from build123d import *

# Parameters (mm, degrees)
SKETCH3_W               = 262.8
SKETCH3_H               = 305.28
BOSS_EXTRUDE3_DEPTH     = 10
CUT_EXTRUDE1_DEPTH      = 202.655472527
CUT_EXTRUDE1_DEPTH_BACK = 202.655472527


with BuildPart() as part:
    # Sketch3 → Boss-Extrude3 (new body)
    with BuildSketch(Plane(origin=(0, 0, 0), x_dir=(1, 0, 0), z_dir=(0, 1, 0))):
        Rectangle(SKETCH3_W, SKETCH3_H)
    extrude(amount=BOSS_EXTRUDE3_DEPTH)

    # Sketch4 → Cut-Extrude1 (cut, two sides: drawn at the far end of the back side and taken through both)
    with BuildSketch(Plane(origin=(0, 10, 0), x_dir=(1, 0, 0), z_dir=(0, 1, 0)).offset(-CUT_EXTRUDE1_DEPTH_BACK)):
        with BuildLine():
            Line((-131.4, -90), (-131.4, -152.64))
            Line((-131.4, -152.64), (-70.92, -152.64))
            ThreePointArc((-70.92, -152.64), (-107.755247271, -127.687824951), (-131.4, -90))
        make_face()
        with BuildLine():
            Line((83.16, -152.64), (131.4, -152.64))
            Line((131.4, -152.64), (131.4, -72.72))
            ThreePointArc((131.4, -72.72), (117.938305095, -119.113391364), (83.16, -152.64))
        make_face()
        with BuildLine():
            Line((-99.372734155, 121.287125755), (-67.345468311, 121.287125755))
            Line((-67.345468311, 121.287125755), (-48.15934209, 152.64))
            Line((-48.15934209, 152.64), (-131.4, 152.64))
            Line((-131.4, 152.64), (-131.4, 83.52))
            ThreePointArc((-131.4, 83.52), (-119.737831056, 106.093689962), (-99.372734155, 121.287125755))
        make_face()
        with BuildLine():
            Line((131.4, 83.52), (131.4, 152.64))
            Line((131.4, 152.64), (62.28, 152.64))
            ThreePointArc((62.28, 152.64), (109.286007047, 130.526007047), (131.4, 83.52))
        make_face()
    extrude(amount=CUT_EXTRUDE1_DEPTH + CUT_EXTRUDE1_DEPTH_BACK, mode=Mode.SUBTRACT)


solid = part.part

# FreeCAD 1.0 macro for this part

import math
import FreeCAD as App
import Part
import Sketcher


def add_polygon(sketch, points):
    """Adds a closed chain of lines whose ends are joined by coincident constraints."""
    first, n = sketch.GeometryCount, len(points)
    for a, b in zip(points, points[1:] + points[:1]):
        sketch.addGeometry(Part.LineSegment(App.Vector(*a, 0), App.Vector(*b, 0)), False)
    for i in range(n):
        sketch.addConstraint(Sketcher.Constraint("Coincident", first + i, 2, first + (i + 1) % n, 1))

doc = App.newDocument("Part")
body = doc.addObject("PartDesign::Body", "Body")

# Sketch on XZ plane
sketch1 = body.newObject("Sketcher::SketchObject", "Sketch")
sketch1.AttachmentSupport = (doc.getObject("XZ_Plane"), [""])
sketch1.MapMode = "FlatFace"
add_polygon(sketch1, [(-131, -153), (-131, 153), (131, 153), (131, -153)])  # lines 0-3
sketch1.addConstraint([
    Sketcher.Constraint("Vertical", 0),
    Sketcher.Constraint("Horizontal", 1),
    Sketcher.Constraint("Vertical", 2),
    Sketcher.Constraint("Horizontal", 3),
    Sketcher.Constraint("Symmetric", 0, 2, 2, 2, -1, 1),
    Sketcher.Constraint("DistanceX", 1, 1, 1, 2, 262.8),
    Sketcher.Constraint("DistanceY", 0, 1, 0, 2, 305.28),
])
pad1 = body.newObject("PartDesign::Pad", "Pad")
pad1.Profile = sketch1
pad1.Length = 10
pad1.Reversed = True

# Sketch on XZ plane
sketch2 = body.newObject("Sketcher::SketchObject", "Sketch001")
sketch2.AttachmentSupport = (doc.getObject("XZ_Plane"), [""])
sketch2.MapMode = "FlatFace"
sketch2.AttachmentOffset = App.Placement(App.Vector(0, 0, -10), App.Rotation())
sketch2.addGeometry([
    Part.LineSegment(App.Vector(-131, 90, 0), App.Vector(-131, 153, 0)),  # 0
    Part.LineSegment(App.Vector(-131, 153, 0), App.Vector(-71, 153, 0)),  # 1
    Part.ArcOfCircle(Part.Circle(App.Vector(-30, 53, 0), App.Vector(0, 0, 1), 108), math.radians(112), math.radians(160)),  # 2
    Part.LineSegment(App.Vector(83, 153, 0), App.Vector(131, 153, 0)),  # 3
    Part.LineSegment(App.Vector(131, 153, 0), App.Vector(131, 73, 0)),  # 4
    Part.ArcOfCircle(Part.Circle(App.Vector(38, 71, 0), App.Vector(0, 0, 1), 94), math.radians(1), math.radians(61)),  # 5
    Part.LineSegment(App.Vector(-99, -121, 0), App.Vector(-67, -121, 0)),  # 6
    Part.LineSegment(App.Vector(-67, -121, 0), App.Vector(-48, -153, 0)),  # 7
    Part.LineSegment(App.Vector(-48, -153, 0), App.Vector(-131, -153, 0)),  # 8
    Part.LineSegment(App.Vector(-131, -153, 0), App.Vector(-131, -84, 0)),  # 9
    Part.ArcOfCircle(Part.Circle(App.Vector(-77, -70, 0), App.Vector(0, 0, 1), 57), math.radians(-166), math.radians(-114)),  # 10
    Part.LineSegment(App.Vector(131, -84, 0), App.Vector(131, -153, 0)),  # 11
    Part.LineSegment(App.Vector(131, -153, 0), App.Vector(62, -153, 0)),  # 12
    Part.ArcOfCircle(Part.Circle(App.Vector(55, -76, 0), App.Vector(0, 0, 1), 77), math.radians(-85), math.radians(-5)),  # 13
], False)
sketch2.addConstraint([
    Sketcher.Constraint("Coincident", 0, 2, 1, 1),
    Sketcher.Constraint("Coincident", 1, 2, 2, 1),
    Sketcher.Constraint("Coincident", 2, 2, 0, 1),
    Sketcher.Constraint("Coincident", 3, 2, 4, 1),
    Sketcher.Constraint("Coincident", 4, 2, 5, 1),
    Sketcher.Constraint("Coincident", 5, 2, 3, 1),
    Sketcher.Constraint("Coincident", 6, 2, 7, 1),
    Sketcher.Constraint("Coincident", 7, 2, 8, 1),
    Sketcher.Constraint("Coincident", 8, 2, 9, 1),
    Sketcher.Constraint("Coincident", 9, 2, 10, 1),
    Sketcher.Constraint("Coincident", 10, 2, 6, 1),
    Sketcher.Constraint("Coincident", 11, 2, 12, 1),
    Sketcher.Constraint("Coincident", 12, 2, 13, 1),
    Sketcher.Constraint("Coincident", 13, 2, 11, 1),
    Sketcher.Constraint("Vertical", 0),
    Sketcher.Constraint("Horizontal", 1),
    Sketcher.Constraint("Horizontal", 3),
    Sketcher.Constraint("Vertical", 4),
    Sketcher.Constraint("Horizontal", 6),
    Sketcher.Constraint("Horizontal", 8),
    Sketcher.Constraint("Vertical", 9),
    Sketcher.Constraint("Vertical", 11),
    Sketcher.Constraint("Horizontal", 12),
    Sketcher.Constraint("Symmetric", 3, 2, 8, 2, -1, 1),
    Sketcher.Constraint("Symmetric", 0, 2, 11, 2, -1, 1),
    Sketcher.Constraint("Symmetric", 0, 2, 3, 2, -2),
    Sketcher.Constraint("Horizontal", 9, 2, 13, 2),
    Sketcher.Constraint("Equal", 12, 9),
    Sketcher.Constraint("DistanceY", -1, 1, 2, 2, 90.0),
    Sketcher.Constraint("DistanceX", 1, 2, 13, 3, 126.0),
    Sketcher.Constraint("DistanceX", 1, 1, 1, 2, 60.48),
    Sketcher.Constraint("DistanceX", 3, 1, 3, 2, 48.24),
    Sketcher.Constraint("DistanceX", 12, 2, 12, 1, 69.12),
    Sketcher.Constraint("DistanceY", 0, 1, 0, 2, 62.64),
    Sketcher.Constraint("DistanceY", 4, 2, 4, 1, 79.92),
    Sketcher.Constraint("DistanceX", 0, 2, -1, 1, 131.4),
    Sketcher.Constraint("Radius", 2, 107.957794),
    Sketcher.Constraint("Radius", 5, 93.721816),
    Sketcher.Constraint("Radius", 10, 56.575424),
    Sketcher.Constraint("DistanceX", 10, 3, 2, 3, 46.498401),
    Sketcher.Constraint("DistanceX", 7, 2, 5, 3, 85.859699),
    Sketcher.Constraint("Distance", 7, 36.75745),
    Sketcher.Constraint("DistanceX", 6, 1, 6, 2, 32.027266),
])
pocket1 = body.newObject("PartDesign::Pocket", "Pocket")
pocket1.Profile = sketch2
pocket1.Type = "ThroughAll"
pocket1.Midplane = True

doc.recompute()
